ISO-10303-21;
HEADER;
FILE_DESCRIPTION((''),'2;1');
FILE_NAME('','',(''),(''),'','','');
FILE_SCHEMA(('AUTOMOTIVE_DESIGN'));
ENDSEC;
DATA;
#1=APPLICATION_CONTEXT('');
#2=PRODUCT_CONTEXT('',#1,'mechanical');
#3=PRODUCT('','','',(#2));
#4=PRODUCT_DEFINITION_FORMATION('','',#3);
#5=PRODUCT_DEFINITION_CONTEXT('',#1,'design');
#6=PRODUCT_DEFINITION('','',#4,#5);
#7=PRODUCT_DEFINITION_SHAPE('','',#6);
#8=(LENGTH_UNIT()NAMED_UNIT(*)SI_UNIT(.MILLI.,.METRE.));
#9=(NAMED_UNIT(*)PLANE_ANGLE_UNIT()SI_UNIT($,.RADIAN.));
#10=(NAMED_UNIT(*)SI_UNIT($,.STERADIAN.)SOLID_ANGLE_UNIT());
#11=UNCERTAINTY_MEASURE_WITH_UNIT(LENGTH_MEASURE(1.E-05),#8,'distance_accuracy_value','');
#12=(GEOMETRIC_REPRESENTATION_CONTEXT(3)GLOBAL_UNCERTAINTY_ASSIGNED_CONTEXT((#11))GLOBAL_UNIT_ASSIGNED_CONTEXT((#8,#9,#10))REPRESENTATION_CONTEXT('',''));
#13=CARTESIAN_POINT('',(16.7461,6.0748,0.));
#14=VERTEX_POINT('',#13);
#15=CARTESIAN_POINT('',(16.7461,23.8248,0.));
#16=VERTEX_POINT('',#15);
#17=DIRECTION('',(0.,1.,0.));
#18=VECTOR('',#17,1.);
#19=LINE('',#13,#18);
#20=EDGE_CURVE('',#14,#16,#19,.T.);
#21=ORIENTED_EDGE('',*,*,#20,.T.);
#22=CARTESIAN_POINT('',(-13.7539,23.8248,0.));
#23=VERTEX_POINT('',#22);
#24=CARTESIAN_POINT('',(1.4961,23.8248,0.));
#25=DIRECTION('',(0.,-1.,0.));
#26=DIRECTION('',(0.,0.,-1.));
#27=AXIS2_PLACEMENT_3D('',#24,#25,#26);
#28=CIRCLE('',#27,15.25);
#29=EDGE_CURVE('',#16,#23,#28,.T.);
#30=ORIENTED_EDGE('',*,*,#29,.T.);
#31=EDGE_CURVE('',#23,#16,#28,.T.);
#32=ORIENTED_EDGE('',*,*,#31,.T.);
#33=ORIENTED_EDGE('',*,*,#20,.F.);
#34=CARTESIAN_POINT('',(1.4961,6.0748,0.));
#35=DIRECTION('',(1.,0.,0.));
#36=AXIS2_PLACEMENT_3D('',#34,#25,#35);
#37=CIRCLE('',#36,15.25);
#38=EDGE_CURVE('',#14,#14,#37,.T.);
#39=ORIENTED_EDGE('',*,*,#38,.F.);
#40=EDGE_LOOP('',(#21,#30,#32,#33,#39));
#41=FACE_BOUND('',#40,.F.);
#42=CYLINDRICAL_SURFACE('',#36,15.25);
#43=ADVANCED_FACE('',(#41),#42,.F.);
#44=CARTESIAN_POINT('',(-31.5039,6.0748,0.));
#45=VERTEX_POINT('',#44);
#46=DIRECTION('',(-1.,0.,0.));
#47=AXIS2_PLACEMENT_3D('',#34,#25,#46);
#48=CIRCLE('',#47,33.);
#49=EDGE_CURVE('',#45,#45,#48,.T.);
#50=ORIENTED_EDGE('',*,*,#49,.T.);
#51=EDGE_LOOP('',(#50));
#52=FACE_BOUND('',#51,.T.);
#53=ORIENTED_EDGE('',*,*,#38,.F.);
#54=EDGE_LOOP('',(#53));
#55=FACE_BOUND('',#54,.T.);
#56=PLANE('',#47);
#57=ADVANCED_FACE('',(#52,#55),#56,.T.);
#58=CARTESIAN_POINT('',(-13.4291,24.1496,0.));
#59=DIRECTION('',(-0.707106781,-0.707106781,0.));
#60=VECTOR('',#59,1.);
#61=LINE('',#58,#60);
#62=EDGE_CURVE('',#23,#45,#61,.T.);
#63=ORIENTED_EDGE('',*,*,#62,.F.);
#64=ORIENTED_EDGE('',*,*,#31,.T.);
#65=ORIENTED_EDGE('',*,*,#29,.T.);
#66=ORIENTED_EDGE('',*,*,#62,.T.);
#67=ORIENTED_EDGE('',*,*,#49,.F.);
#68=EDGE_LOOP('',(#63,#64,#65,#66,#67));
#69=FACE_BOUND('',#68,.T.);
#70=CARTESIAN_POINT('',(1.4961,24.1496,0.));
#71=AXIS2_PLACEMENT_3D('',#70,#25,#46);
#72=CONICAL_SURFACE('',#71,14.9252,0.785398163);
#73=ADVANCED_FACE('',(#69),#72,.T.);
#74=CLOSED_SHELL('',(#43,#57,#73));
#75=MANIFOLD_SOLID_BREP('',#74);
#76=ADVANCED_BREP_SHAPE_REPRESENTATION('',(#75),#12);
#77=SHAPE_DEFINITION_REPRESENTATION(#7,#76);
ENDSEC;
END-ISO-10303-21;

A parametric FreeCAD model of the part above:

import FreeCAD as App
import Part
import Sketcher

V = App.Vector


def add_polygon(sketch, points):
    """Adds a closed chain of lines whose ends are joined by coincident constraints."""
    first, n = sketch.GeometryCount, len(points)
    for a, b in zip(points, points[1:] + points[:1]):
        sketch.addGeometry(Part.LineSegment(App.Vector(*a, 0), App.Vector(*b, 0)), False)
    for i in range(n):
        sketch.addConstraint(Sketcher.Constraint("Coincident", first + i, 2, first + (i + 1) % n, 1))

doc = App.newDocument("Part")
params = doc.addObject("Spreadsheet::Sheet", "Params")
for row, (alias, value) in enumerate([
    ("revolution_angle", "360 deg"),
    ("sketch2_diameter", "30.5 mm"),
], start=1):
    params.set(f"A{row}", alias)
    params.set(f"B{row}", "=" + value)
    params.setAlias(f"B{row}", alias)

body = doc.addObject("PartDesign::Body", "Body")

# Sketch on XY plane
sketch1 = body.newObject("Sketcher::SketchObject", "Sketch")
sketch1.AttachmentSupport = (doc.getObject("XY_Plane"), [""])
sketch1.MapMode = "FlatFace"
add_polygon(sketch1, [(-13, 6), (-13, 24), (-32, 6)])  # lines 0-2
sketch1.addGeometry(Part.LineSegment(V(1, 24, 0), V(1, 6, 0)), True)  # axis
sketch1.addConstraint(Sketcher.Constraint("Vertical", 0))
sketch1.addConstraint(Sketcher.Constraint("Horizontal", 2))
sketch1.addConstraint(Sketcher.Constraint("Vertical", 3))
sketch1.addConstraint(Sketcher.Constraint("Horizontal", 0, 2, 3, 1))
sketch1.addConstraint(Sketcher.Constraint("Horizontal", 2, 2, 3, 2))
sketch1.addConstraint(Sketcher.Constraint("Equal", 2, 0))
sketch1.addConstraint(Sketcher.Constraint("DistanceX", 2, 1, 2, 2, 18.0748))
sketch1.addConstraint(Sketcher.Constraint("DistanceX", 1, 2, 3, 1, 33.0))
sketch1.addConstraint(Sketcher.Constraint("DistanceX", 0, 2, -1, 1, 13.429))
sketch1.addConstraint(Sketcher.Constraint("DistanceY", -1, 1, 0, 2, 24.1496))
revolution = body.newObject("PartDesign::Revolution", "Revolution")
revolution.Profile = sketch1
revolution.ReferenceAxis = (sketch1, ["Axis0"])
revolution.setExpression("Angle", "Params.revolution_angle")

# Sketch on XZ plane
sketch2 = body.newObject("Sketcher::SketchObject", "Sketch001")
sketch2.AttachmentSupport = (doc.getObject("XZ_Plane"), [""])
sketch2.MapMode = "FlatFace"
sketch2.AttachmentOffset = App.Placement(V(0, 0, -6.0748), App.Rotation())
sketch2.addGeometry(Part.Circle(V(1, 0, 0), V(0, 0, 1), 15), False)
sketch2.addConstraint(Sketcher.Constraint("PointOnObject", 0, 3, -1))
sketch2.addConstraint(Sketcher.Constraint("Diameter", 0, 30.5))
sketch2.addConstraint(Sketcher.Constraint("DistanceX", -1, 1, 0, 3, 1.496))
sketch2.setExpression("Constraints[1]", "Params.sketch2_diameter")
pocket1 = body.newObject("PartDesign::Pocket", "Pocket")
pocket1.Profile = sketch2
pocket1.Type = "ThroughAll"

doc.recompute()
